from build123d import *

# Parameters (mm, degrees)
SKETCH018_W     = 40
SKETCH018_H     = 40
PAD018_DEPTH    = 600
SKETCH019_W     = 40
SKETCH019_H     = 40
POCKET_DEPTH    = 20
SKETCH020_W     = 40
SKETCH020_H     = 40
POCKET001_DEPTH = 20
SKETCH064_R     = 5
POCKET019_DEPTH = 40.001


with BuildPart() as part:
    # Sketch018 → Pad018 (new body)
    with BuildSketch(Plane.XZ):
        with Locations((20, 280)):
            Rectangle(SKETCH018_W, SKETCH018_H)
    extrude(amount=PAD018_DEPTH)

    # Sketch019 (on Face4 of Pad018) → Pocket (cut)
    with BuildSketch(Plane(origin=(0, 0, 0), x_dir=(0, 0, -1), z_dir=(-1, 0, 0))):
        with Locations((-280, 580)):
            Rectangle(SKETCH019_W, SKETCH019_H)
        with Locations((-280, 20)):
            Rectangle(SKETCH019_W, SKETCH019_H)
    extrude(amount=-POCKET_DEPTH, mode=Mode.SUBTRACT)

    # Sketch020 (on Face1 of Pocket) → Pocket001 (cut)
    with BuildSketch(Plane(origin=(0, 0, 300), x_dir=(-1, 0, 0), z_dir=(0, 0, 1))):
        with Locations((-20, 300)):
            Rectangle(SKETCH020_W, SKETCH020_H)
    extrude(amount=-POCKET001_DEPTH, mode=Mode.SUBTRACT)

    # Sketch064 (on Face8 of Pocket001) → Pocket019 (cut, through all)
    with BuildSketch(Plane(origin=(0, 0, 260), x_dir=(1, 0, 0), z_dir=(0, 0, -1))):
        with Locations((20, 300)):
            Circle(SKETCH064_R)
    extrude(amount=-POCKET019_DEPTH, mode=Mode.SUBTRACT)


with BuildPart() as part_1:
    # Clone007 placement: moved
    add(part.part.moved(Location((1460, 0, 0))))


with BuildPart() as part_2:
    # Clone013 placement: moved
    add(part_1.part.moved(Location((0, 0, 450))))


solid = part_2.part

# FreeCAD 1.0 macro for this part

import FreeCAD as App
import Part
import Sketcher


def add_polygon(sketch, points):
    """Adds a closed chain of lines whose ends are joined by coincident constraints."""
    first, n = sketch.GeometryCount, len(points)
    for a, b in zip(points, points[1:] + points[:1]):
        sketch.addGeometry(Part.LineSegment(App.Vector(*a, 0), App.Vector(*b, 0)), False)
    for i in range(n):
        sketch.addConstraint(Sketcher.Constraint("Coincident", first + i, 2, first + (i + 1) % n, 1))

doc = App.newDocument("Part")
body = doc.addObject("PartDesign::Body", "Body")

sketch1 = doc.addObject("Sketcher::SketchObject", "Sketch")
body.addObject(sketch1)
sketch1.AttachmentSupport = (doc.XZ_Plane, [""])
sketch1.MapMode = "FlatFace"
add_polygon(sketch1, [(0, 300), (0, 260), (40, 260), (40, 300)])
sketch1.addConstraint([
    Sketcher.Constraint("Vertical", 0),
    Sketcher.Constraint("Horizontal", 1),
    Sketcher.Constraint("Vertical", 2),
    Sketcher.Constraint("Horizontal", 3),
    Sketcher.Constraint("PointOnObject", 0, 2, -2),
    Sketcher.Constraint("Equal", 3, 0),
    Sketcher.Constraint("DistanceX", 1, 1, 1, 2, 40.0),
    Sketcher.Constraint("DistanceY", -1, 1, 0, 2, 260.0),
])
pad1 = doc.addObject("PartDesign::Pad", "Pad")
body.addObject(pad1)
pad1.Profile = sketch1
pad1.Length = 600

sketch2 = doc.addObject("Sketcher::SketchObject", "Sketch001")
body.addObject(sketch2)
sketch2.AttachmentSupport = (doc.YZ_Plane, [""])
sketch2.MapMode = "FlatFace"
add_polygon(sketch2, [(-600, 300), (-560, 300), (-560, 260), (-600, 260)])
add_polygon(sketch2, [(-40, 300), (0, 300), (0, 260), (-40, 260)])
sketch2.addConstraint([
    Sketcher.Constraint("Horizontal", 0),
    Sketcher.Constraint("Vertical", 1),
    Sketcher.Constraint("Horizontal", 2),
    Sketcher.Constraint("Vertical", 3),
    Sketcher.Constraint("Horizontal", 4),
    Sketcher.Constraint("Vertical", 5),
    Sketcher.Constraint("Horizontal", 6),
    Sketcher.Constraint("Vertical", 7),
    Sketcher.Constraint("PointOnObject", 4, 2, -2),
    Sketcher.Constraint("Horizontal", 3, 2, 4, 2),
    Sketcher.Constraint("Horizontal", 2, 2, 5, 2),
    Sketcher.Constraint("Equal", 2, 4),
    Sketcher.Constraint("Equal", 6, 1),
    Sketcher.Constraint("DistanceX", 0, 1, 0, 2, 40.0),
    Sketcher.Constraint("DistanceX", 0, 2, -1, 1, 560.0),
    Sketcher.Constraint("DistanceY", -1, 1, 0, 2, 300.0),
])
pocket1 = doc.addObject("PartDesign::Pocket", "Pocket")
body.addObject(pocket1)
pocket1.Profile = sketch2
pocket1.Length = 20
pocket1.Reversed = True

sketch3 = doc.addObject("Sketcher::SketchObject", "Sketch002")
body.addObject(sketch3)
sketch3.AttachmentSupport = (doc.XY_Plane, [""])
sketch3.MapMode = "FlatFace"
sketch3.AttachmentOffset = App.Placement(App.Vector(0, 0, 300), App.Rotation())
add_polygon(sketch3, [(40, -320), (40, -280), (0, -280), (0, -320)])
sketch3.addConstraint([
    Sketcher.Constraint("Vertical", 0),
    Sketcher.Constraint("Horizontal", 1),
    Sketcher.Constraint("Vertical", 2),
    Sketcher.Constraint("Horizontal", 3),
    Sketcher.Constraint("PointOnObject", 1, 2, -2),
    Sketcher.Constraint("Equal", 3, 0),
    Sketcher.Constraint("DistanceX", 1, 2, 1, 1, 40.0),
    Sketcher.Constraint("DistanceY", 0, 2, -1, 1, 280.0),
])
pocket2 = doc.addObject("PartDesign::Pocket", "Pocket001")
body.addObject(pocket2)
pocket2.Profile = sketch3
pocket2.Length = 20

sketch4 = doc.addObject("Sketcher::SketchObject", "Sketch003")
body.addObject(sketch4)
sketch4.AttachmentSupport = (doc.XY_Plane, [""])
sketch4.MapMode = "FlatFace"
sketch4.AttachmentOffset = App.Placement(App.Vector(0, 0, 260), App.Rotation())
sketch4.addGeometry(Part.Circle(App.Vector(20, -300, 0), App.Vector(0, 0, 1), 5), False)
sketch4.addConstraint([
    Sketcher.Constraint("Diameter", 0, 10.0),
    Sketcher.Constraint("DistanceX", -1, 1, 0, 3, 20.0),
    Sketcher.Constraint("DistanceY", 0, 3, -1, 1, 300.0),
])
pocket3 = doc.addObject("PartDesign::Pocket", "Pocket002")
body.addObject(pocket3)
pocket3.Profile = sketch4
pocket3.Type = "ThroughAll"
pocket3.Reversed = True
body2 = doc.addObject("PartDesign::Body", "Body001")
doc.recompute()

body.Placement = App.Placement(App.Vector(1460, 0, 0), App.Rotation(App.Vector(0, 0, 1), 0))
boolean = doc.addObject("PartDesign::Boolean", "Boolean")
body2.addObject(boolean)
boolean.Type = "Fuse"
boolean.addObjects([body])
body3 = doc.addObject("PartDesign::Body", "Body002")
doc.recompute()

body2.Placement = App.Placement(App.Vector(0, 0, 450), App.Rotation(App.Vector(0, 0, 1), 0))
boolean2 = doc.addObject("PartDesign::Boolean", "Boolean001")
body3.addObject(boolean2)
boolean2.Type = "Fuse"
boolean2.addObjects([body2])

doc.recompute()
